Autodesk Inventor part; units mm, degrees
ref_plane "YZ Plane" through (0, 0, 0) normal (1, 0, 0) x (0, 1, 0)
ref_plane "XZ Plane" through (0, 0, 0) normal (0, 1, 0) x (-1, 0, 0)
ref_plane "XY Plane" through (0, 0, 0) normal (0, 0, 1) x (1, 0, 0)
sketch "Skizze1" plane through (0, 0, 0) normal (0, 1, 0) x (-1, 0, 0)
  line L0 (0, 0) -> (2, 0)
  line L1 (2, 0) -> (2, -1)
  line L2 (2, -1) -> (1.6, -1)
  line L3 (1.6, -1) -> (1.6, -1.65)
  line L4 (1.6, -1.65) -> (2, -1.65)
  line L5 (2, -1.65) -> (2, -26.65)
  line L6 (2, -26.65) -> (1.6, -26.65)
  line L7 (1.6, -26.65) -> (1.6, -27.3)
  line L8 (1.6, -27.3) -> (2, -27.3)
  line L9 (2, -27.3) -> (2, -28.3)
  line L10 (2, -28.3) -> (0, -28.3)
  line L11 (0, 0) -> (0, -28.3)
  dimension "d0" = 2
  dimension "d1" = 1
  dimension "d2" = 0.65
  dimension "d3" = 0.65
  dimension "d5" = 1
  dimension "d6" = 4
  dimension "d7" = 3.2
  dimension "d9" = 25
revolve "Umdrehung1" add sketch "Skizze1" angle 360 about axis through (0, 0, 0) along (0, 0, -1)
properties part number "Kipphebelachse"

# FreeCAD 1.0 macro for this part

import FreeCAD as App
import Part
import Sketcher
from FreeCAD import Vector
Q = App.Units.Quantity


def add_polygon(sketch, points):
    """Adds a closed chain of lines whose ends are joined by coincident constraints."""
    first, n = sketch.GeometryCount, len(points)
    for a, b in zip(points, points[1:] + points[:1]):
        sketch.addGeometry(Part.LineSegment(App.Vector(*a, 0), App.Vector(*b, 0)), False)
    for i in range(n):
        sketch.addConstraint(Sketcher.Constraint("Coincident", first + i, 2, first + (i + 1) % n, 1))

doc = App.newDocument("Part")
params = doc.addObject("Spreadsheet::Sheet", "Params")
for row, (alias, value) in enumerate([
    ("sketch1_width", "2 mm"),
    ("sketch1_height", "1 mm"),
    ("sketch1_height2", "25 mm"),
    ("sketch1_height3", "0.65 mm"),
    ("sketch1_width2", "0.4 mm"),
    ("revolution_angle", "360 deg"),
], start=1):
    params.set(f"A{row}", alias)
    params.set(f"B{row}", "=" + value)
    params.setAlias(f"B{row}", alias)

body = doc.addObject("PartDesign::Body", "Body")

sketch1 = body.newObject("Sketcher::SketchObject", "Sketch")
sketch1.AttachmentSupport = (doc.getObject("XZ_Plane"), [""])
sketch1.MapMode = "FlatFace"
add_polygon(sketch1, [(-2, 0), (0, 0), (0, -28.3), (-2, -28.3), (-2, -27.3), (-1.6, -27.3), (-1.6, -26.65), (-2, -26.65), (-2, -1.65), (-1.6, -1.65), (-1.6, -1), (-2, -1)])
sketch1.addConstraint([
    Sketcher.Constraint("Horizontal", 0),
    Sketcher.Constraint("Vertical", 1),
    Sketcher.Constraint("Horizontal", 2),
    Sketcher.Constraint("Vertical", 3),
    Sketcher.Constraint("Horizontal", 4),
    Sketcher.Constraint("Vertical", 5),
    Sketcher.Constraint("Horizontal", 6),
    Sketcher.Constraint("Vertical", 7),
    Sketcher.Constraint("Horizontal", 8),
    Sketcher.Constraint("Vertical", 9),
    Sketcher.Constraint("Horizontal", 10),
    Sketcher.Constraint("Vertical", 11),
    Sketcher.Constraint("Coincident", 0, 2, -1, 1),
    Sketcher.Constraint("Vertical", 3, 2, 6, 2),
    Sketcher.Constraint("Vertical", 5, 2, 8, 2),
    Sketcher.Constraint("Vertical", 7, 2, 10, 2),
    Sketcher.Constraint("Equal", 5, 9),
    Sketcher.Constraint("Equal", 3, 11),
    Sketcher.Constraint("DistanceX", 0, 1, 0, 2, Q("2 mm")),
    Sketcher.Constraint("DistanceY", 3, 1, 3, 2, Q("1 mm")),
    Sketcher.Constraint("DistanceY", 7, 1, 7, 2, Q("25 mm")),
    Sketcher.Constraint("DistanceY", 5, 1, 5, 2, Q("0.65 mm")),
    Sketcher.Constraint("DistanceX", 4, 1, 4, 2, Q("0.4 mm")),
])
sketch1.setExpression("Constraints[30]", "Params.sketch1_width")
sketch1.setExpression("Constraints[31]", "Params.sketch1_height")
sketch1.setExpression("Constraints[32]", "Params.sketch1_height2")
sketch1.setExpression("Constraints[33]", "Params.sketch1_height3")
sketch1.setExpression("Constraints[34]", "Params.sketch1_width2")
revolution = body.newObject("PartDesign::Revolution", "Revolution")
revolution.Profile = sketch1
revolution.ReferenceAxis = (sketch1, ["V_Axis"])
revolution.setExpression("Angle", "Params.revolution_angle")

doc.recompute()
